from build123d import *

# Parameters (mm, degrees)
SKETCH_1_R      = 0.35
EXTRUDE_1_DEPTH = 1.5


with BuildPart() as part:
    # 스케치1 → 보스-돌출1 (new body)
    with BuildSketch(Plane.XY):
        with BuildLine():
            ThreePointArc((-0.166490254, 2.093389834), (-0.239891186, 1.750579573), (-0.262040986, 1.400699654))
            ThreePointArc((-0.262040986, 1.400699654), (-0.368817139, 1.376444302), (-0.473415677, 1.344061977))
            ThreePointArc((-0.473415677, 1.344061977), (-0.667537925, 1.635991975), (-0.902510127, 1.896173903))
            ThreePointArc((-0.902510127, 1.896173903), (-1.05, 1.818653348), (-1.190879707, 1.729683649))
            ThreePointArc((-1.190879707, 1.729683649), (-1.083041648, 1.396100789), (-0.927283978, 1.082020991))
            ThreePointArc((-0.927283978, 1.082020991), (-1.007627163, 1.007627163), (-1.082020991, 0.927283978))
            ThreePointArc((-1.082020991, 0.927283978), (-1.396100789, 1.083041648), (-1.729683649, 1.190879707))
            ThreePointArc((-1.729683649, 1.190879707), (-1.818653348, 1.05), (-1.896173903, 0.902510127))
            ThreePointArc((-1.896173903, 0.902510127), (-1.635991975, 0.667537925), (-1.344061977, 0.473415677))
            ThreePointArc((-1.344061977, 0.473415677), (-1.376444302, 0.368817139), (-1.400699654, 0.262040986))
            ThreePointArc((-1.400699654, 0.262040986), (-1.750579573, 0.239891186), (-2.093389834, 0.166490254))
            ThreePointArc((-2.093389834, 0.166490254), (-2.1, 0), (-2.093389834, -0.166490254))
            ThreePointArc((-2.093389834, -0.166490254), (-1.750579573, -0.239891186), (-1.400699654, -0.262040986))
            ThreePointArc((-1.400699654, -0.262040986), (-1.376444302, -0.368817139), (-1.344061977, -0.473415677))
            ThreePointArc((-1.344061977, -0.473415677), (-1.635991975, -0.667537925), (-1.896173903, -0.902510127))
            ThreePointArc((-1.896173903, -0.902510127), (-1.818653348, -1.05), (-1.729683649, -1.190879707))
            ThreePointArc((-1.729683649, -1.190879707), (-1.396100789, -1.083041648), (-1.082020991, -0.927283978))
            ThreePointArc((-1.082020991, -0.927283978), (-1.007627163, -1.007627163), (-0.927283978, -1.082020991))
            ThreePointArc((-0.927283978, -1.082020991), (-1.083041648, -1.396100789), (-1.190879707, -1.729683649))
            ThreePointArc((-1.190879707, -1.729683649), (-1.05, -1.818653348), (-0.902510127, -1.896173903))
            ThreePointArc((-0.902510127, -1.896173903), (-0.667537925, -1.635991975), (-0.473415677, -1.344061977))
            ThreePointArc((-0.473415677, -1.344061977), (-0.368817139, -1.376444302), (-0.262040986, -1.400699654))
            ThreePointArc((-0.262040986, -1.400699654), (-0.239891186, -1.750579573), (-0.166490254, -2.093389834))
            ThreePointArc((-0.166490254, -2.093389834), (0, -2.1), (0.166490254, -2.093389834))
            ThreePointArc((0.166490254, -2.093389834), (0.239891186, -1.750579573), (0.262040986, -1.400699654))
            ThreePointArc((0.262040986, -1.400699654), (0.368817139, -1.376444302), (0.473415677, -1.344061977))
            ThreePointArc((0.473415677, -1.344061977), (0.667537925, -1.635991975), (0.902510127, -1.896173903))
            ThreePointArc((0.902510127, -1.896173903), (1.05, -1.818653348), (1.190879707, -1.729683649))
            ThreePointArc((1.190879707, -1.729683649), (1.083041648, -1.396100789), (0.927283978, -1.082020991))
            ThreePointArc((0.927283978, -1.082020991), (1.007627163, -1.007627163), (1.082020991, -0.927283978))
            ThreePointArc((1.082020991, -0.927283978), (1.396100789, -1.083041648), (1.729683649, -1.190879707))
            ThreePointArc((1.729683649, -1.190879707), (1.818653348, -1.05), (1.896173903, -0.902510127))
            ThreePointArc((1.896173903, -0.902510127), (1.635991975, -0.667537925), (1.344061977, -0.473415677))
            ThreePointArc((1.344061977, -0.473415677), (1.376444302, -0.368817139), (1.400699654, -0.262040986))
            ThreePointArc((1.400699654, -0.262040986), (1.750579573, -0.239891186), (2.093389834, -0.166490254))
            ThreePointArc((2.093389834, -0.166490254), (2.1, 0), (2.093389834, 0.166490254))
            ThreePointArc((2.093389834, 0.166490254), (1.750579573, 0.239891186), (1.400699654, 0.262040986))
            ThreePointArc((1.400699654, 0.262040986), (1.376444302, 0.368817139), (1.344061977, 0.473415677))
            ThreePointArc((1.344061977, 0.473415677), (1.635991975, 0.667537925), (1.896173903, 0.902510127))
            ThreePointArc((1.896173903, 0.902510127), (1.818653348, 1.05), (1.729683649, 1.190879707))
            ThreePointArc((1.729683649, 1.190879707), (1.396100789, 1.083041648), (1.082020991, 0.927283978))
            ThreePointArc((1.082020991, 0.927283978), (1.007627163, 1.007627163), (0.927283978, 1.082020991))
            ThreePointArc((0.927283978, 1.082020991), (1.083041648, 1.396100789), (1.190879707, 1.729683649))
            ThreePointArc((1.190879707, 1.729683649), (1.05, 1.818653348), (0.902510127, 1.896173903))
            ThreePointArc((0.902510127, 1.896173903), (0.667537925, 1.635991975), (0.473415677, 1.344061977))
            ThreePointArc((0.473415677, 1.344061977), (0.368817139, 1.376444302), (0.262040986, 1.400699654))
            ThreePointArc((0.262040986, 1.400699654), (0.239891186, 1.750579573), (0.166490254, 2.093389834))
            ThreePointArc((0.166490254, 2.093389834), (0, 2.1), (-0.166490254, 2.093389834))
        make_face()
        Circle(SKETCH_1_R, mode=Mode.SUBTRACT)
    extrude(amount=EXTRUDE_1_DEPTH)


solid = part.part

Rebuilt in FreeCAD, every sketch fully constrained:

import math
import FreeCAD as App
import Part
import Sketcher

V = App.Vector

doc = App.newDocument("Part")
params = doc.addObject("Spreadsheet::Sheet", "Params")
for row, (alias, value) in enumerate([
    ("sketch1_diameter", "0.7 mm"),
    ("sketch1_radius", "2.1 mm"),
    ("pad1_length", "1.5 mm"),
], start=1):
    params.set(f"A{row}", alias)
    params.set(f"B{row}", "=" + value)
    params.setAlias(f"B{row}", alias)

body = doc.addObject("PartDesign::Body", "Body")

# Sketch on XY plane
sketch1 = body.newObject("Sketcher::SketchObject", "Sketch")
sketch1.AttachmentSupport = (doc.getObject("XY_Plane"), [""])
sketch1.MapMode = "FlatFace"
sketch1.addGeometry([
    Part.ArcOfCircle(Part.Circle(V(2.11, 1.43, 0), V(0, 0, 1), 2.38), math.radians(163.68), math.radians(180.61)),  # 0
    Part.ArcOfCircle(Part.Circle(V(0, 0, 0), V(0, 0, 1), 1.43), math.radians(100.6), math.radians(109.4)),  # 1
    Part.ArcOfCircle(Part.Circle(V(-2.54, 0.18, 0), V(0, 0, 1), 2.38), math.radians(29.39), math.radians(46.32)),  # 2
    Part.ArcOfCircle(Part.Circle(V(0, 0, 0), V(0, 0, 1), 2.1), math.radians(115.45), math.radians(124.55)),  # 3
    Part.ArcOfCircle(Part.Circle(V(1.12, 2.29, 0), V(0, 0, 1), 2.38), math.radians(-166.32), math.radians(-149.39)),  # 4
    Part.ArcOfCircle(Part.Circle(V(0, 0, 0), V(0, 0, 1), 1.43), math.radians(130.6), math.radians(139.4)),  # 5
    Part.ArcOfCircle(Part.Circle(V(-2.29, -1.12, 0), V(0, 0, 1), 2.38), math.radians(59.39), math.radians(76.32)),  # 6
    Part.ArcOfCircle(Part.Circle(V(0, 0, 0), V(0, 0, 1), 2.1), math.radians(145.45), math.radians(154.55)),  # 7
    Part.ArcOfCircle(Part.Circle(V(-0.18, 2.54, 0), V(0, 0, 1), 2.38), math.radians(-136.32), math.radians(-119.39)),  # 8
    Part.ArcOfCircle(Part.Circle(V(0, 0, 0), V(0, 0, 1), 1.43), math.radians(160.6), math.radians(169.4)),  # 9
    Part.ArcOfCircle(Part.Circle(V(-1.43, -2.11, 0), V(0, 0, 1), 2.38), math.radians(89.39), math.radians(106.32)),  # 10
    Part.ArcOfCircle(Part.Circle(V(0, 0, 0), V(0, 0, 1), 2.1), math.radians(175.45), math.radians(184.55)),  # 11
    Part.ArcOfCircle(Part.Circle(V(-1.43, 2.11, 0), V(0, 0, 1), 2.38), math.radians(-106.32), math.radians(-89.39)),  # 12
    Part.ArcOfCircle(Part.Circle(V(0, 0, 0), V(0, 0, 1), 1.43), math.radians(-169.4), math.radians(-160.6)),  # 13
    Part.ArcOfCircle(Part.Circle(V(-0.18, -2.54, 0), V(0, 0, 1), 2.38), math.radians(119.39), math.radians(136.32)),  # 14
    Part.ArcOfCircle(Part.Circle(V(0, 0, 0), V(0, 0, 1), 2.1), math.radians(-154.55), math.radians(-145.45)),  # 15
    Part.ArcOfCircle(Part.Circle(V(-2.29, 1.12, 0), V(0, 0, 1), 2.38), math.radians(-76.32), math.radians(-59.39)),  # 16
    Part.ArcOfCircle(Part.Circle(V(0, 0, 0), V(0, 0, 1), 1.43), math.radians(-139.4), math.radians(-130.6)),  # 17
    Part.ArcOfCircle(Part.Circle(V(1.12, -2.29, 0), V(0, 0, 1), 2.38), math.radians(149.39), math.radians(166.32)),  # 18
    Part.ArcOfCircle(Part.Circle(V(0, 0, 0), V(0, 0, 1), 2.1), math.radians(-124.55), math.radians(-115.45)),  # 19
    Part.ArcOfCircle(Part.Circle(V(-2.54, -0.18, 0), V(0, 0, 1), 2.38), math.radians(-46.32), math.radians(-29.39)),  # 20
    Part.ArcOfCircle(Part.Circle(V(0, 0, 0), V(0, 0, 1), 1.43), math.radians(-109.4), math.radians(-100.6)),  # 21
    Part.ArcOfCircle(Part.Circle(V(2.11, -1.43, 0), V(0, 0, 1), 2.38), math.radians(179.39), math.radians(196.32)),  # 22
    Part.ArcOfCircle(Part.Circle(V(0, 0, 0), V(0, 0, 1), 2.1), math.radians(-94.55), math.radians(-85.45)),  # 23
    Part.ArcOfCircle(Part.Circle(V(-2.11, -1.43, 0), V(0, 0, 1), 2.38), math.radians(-16.32), math.radians(0.61)),  # 24
    Part.ArcOfCircle(Part.Circle(V(0, 0, 0), V(0, 0, 1), 1.43), math.radians(-79.4), math.radians(-70.6)),  # 25
    Part.ArcOfCircle(Part.Circle(V(2.54, -0.18, 0), V(0, 0, 1), 2.38), math.radians(-150.61), math.radians(-133.68)),  # 26
    Part.ArcOfCircle(Part.Circle(V(0, 0, 0), V(0, 0, 1), 2.1), math.radians(-64.55), math.radians(-55.45)),  # 27
    Part.ArcOfCircle(Part.Circle(V(-1.12, -2.29, 0), V(0, 0, 1), 2.38), math.radians(13.68), math.radians(30.61)),  # 28
    Part.ArcOfCircle(Part.Circle(V(0, 0, 0), V(0, 0, 1), 1.43), math.radians(-49.4), math.radians(-40.6)),  # 29
    Part.ArcOfCircle(Part.Circle(V(2.29, 1.12, 0), V(0, 0, 1), 2.38), math.radians(-120.61), math.radians(-103.68)),  # 30
    Part.ArcOfCircle(Part.Circle(V(0, 0, 0), V(0, 0, 1), 2.1), math.radians(-34.55), math.radians(-25.45)),  # 31
    Part.ArcOfCircle(Part.Circle(V(0.18, -2.54, 0), V(0, 0, 1), 2.38), math.radians(43.68), math.radians(60.61)),  # 32
    Part.ArcOfCircle(Part.Circle(V(0, 0, 0), V(0, 0, 1), 1.43), math.radians(-19.4), math.radians(-10.6)),  # 33
    Part.ArcOfCircle(Part.Circle(V(1.43, 2.11, 0), V(0, 0, 1), 2.38), math.radians(-90.61), math.radians(-73.68)),  # 34
    Part.ArcOfCircle(Part.Circle(V(0, 0, 0), V(0, 0, 1), 2.1), math.radians(-4.55), math.radians(4.55)),  # 35
    Part.ArcOfCircle(Part.Circle(V(1.43, -2.11, 0), V(0, 0, 1), 2.38), math.radians(73.68), math.radians(90.61)),  # 36
    Part.ArcOfCircle(Part.Circle(V(0, 0, 0), V(0, 0, 1), 1.43), math.radians(10.6), math.radians(19.4)),  # 37
    Part.ArcOfCircle(Part.Circle(V(0.18, 2.54, 0), V(0, 0, 1), 2.38), math.radians(-60.61), math.radians(-43.68)),  # 38
    Part.ArcOfCircle(Part.Circle(V(0, 0, 0), V(0, 0, 1), 2.1), math.radians(25.45), math.radians(34.55)),  # 39
    Part.ArcOfCircle(Part.Circle(V(2.29, -1.12, 0), V(0, 0, 1), 2.38), math.radians(103.68), math.radians(120.61)),  # 40
    Part.ArcOfCircle(Part.Circle(V(0, 0, 0), V(0, 0, 1), 1.43), math.radians(40.6), math.radians(49.4)),  # 41
    Part.ArcOfCircle(Part.Circle(V(-1.12, 2.29, 0), V(0, 0, 1), 2.38), math.radians(-30.61), math.radians(-13.68)),  # 42
    Part.ArcOfCircle(Part.Circle(V(0, 0, 0), V(0, 0, 1), 2.1), math.radians(55.45), math.radians(64.55)),  # 43
    Part.ArcOfCircle(Part.Circle(V(2.54, 0.18, 0), V(0, 0, 1), 2.38), math.radians(133.68), math.radians(150.61)),  # 44
    Part.ArcOfCircle(Part.Circle(V(0, 0, 0), V(0, 0, 1), 1.43), math.radians(70.6), math.radians(79.4)),  # 45
    Part.ArcOfCircle(Part.Circle(V(-2.11, 1.43, 0), V(0, 0, 1), 2.38), math.radians(-0.61), math.radians(16.32)),  # 46
    Part.ArcOfCircle(Part.Circle(V(0, 0, 0), V(0, 0, 1), 2.1), math.radians(85.45), math.radians(94.55)),  # 47
    Part.Circle(V(0, 0, 0), V(0, 0, 1), 0.35),  # 48
], False)
sketch1.addConstraint([
    Sketcher.Constraint("Coincident", 0, 2, 1, 1),
    Sketcher.Constraint("Coincident", 1, 2, 2, 1),
    Sketcher.Constraint("Coincident", 2, 2, 3, 1),
    Sketcher.Constraint("Coincident", 3, 2, 4, 1),
    Sketcher.Constraint("Coincident", 4, 2, 5, 1),
    Sketcher.Constraint("Coincident", 5, 2, 6, 1),
    Sketcher.Constraint("Coincident", 6, 2, 7, 1),
    Sketcher.Constraint("Coincident", 7, 2, 8, 1),
    Sketcher.Constraint("Coincident", 8, 2, 9, 1),
    Sketcher.Constraint("Coincident", 9, 2, 10, 1),
    Sketcher.Constraint("Coincident", 10, 2, 11, 1),
    Sketcher.Constraint("Coincident", 11, 2, 12, 1),
    Sketcher.Constraint("Coincident", 12, 2, 13, 1),
    Sketcher.Constraint("Coincident", 13, 2, 14, 1),
    Sketcher.Constraint("Coincident", 14, 2, 15, 1),
    Sketcher.Constraint("Coincident", 15, 2, 16, 1),
    Sketcher.Constraint("Coincident", 16, 2, 17, 1),
    Sketcher.Constraint("Coincident", 17, 2, 18, 1),
    Sketcher.Constraint("Coincident", 18, 2, 19, 1),
    Sketcher.Constraint("Coincident", 19, 2, 20, 1),
    Sketcher.Constraint("Coincident", 20, 2, 21, 1),
    Sketcher.Constraint("Coincident", 21, 2, 22, 1),
    Sketcher.Constraint("Coincident", 22, 2, 23, 1),
    Sketcher.Constraint("Coincident", 23, 2, 24, 1),
    Sketcher.Constraint("Coincident", 24, 2, 25, 1),
    Sketcher.Constraint("Coincident", 25, 2, 26, 1),
    Sketcher.Constraint("Coincident", 26, 2, 27, 1),
    Sketcher.Constraint("Coincident", 27, 2, 28, 1),
    Sketcher.Constraint("Coincident", 28, 2, 29, 1),
    Sketcher.Constraint("Coincident", 29, 2, 30, 1),
    Sketcher.Constraint("Coincident", 30, 2, 31, 1),
    Sketcher.Constraint("Coincident", 31, 2, 32, 1),
    Sketcher.Constraint("Coincident", 32, 2, 33, 1),
    Sketcher.Constraint("Coincident", 33, 2, 34, 1),
    Sketcher.Constraint("Coincident", 34, 2, 35, 1),
    Sketcher.Constraint("Coincident", 35, 2, 36, 1),
    Sketcher.Constraint("Coincident", 36, 2, 37, 1),
    Sketcher.Constraint("Coincident", 37, 2, 38, 1),
    Sketcher.Constraint("Coincident", 38, 2, 39, 1),
    Sketcher.Constraint("Coincident", 39, 2, 40, 1),
    Sketcher.Constraint("Coincident", 40, 2, 41, 1),
    Sketcher.Constraint("Coincident", 41, 2, 42, 1),
    Sketcher.Constraint("Coincident", 42, 2, 43, 1),
    Sketcher.Constraint("Coincident", 43, 2, 44, 1),
    Sketcher.Constraint("Coincident", 44, 2, 45, 1),
    Sketcher.Constraint("Coincident", 45, 2, 46, 1),
    Sketcher.Constraint("Coincident", 46, 2, 47, 1),
    Sketcher.Constraint("Coincident", 47, 2, 0, 1),
    Sketcher.Constraint("Coincident", 1, 3, -1, 1),
    Sketcher.Constraint("Coincident", 3, 3, -1, 1),
    Sketcher.Constraint("Coincident", 5, 3, -1, 1),
    Sketcher.Constraint("Coincident", 7, 3, -1, 1),
    Sketcher.Constraint("Coincident", 9, 3, -1, 1),
    Sketcher.Constraint("Coincident", 11, 3, -1, 1),
    Sketcher.Constraint("Coincident", 13, 3, -1, 1),
    Sketcher.Constraint("Coincident", 15, 3, -1, 1),
    Sketcher.Constraint("Coincident", 17, 3, -1, 1),
    Sketcher.Constraint("Coincident", 19, 3, -1, 1),
    Sketcher.Constraint("Coincident", 21, 3, -1, 1),
    Sketcher.Constraint("Coincident", 23, 3, -1, 1),
    Sketcher.Constraint("Coincident", 25, 3, -1, 1),
    Sketcher.Constraint("Coincident", 27, 3, -1, 1),
    Sketcher.Constraint("Coincident", 29, 3, -1, 1),
    Sketcher.Constraint("Coincident", 31, 3, -1, 1),
    Sketcher.Constraint("Coincident", 33, 3, -1, 1),
    Sketcher.Constraint("Coincident", 35, 3, -1, 1),
    Sketcher.Constraint("Coincident", 37, 3, -1, 1),
    Sketcher.Constraint("Coincident", 39, 3, -1, 1),
    Sketcher.Constraint("Coincident", 41, 3, -1, 1),
    Sketcher.Constraint("Coincident", 43, 3, -1, 1),
    Sketcher.Constraint("Coincident", 45, 3, -1, 1),
    Sketcher.Constraint("Coincident", 47, 3, -1, 1),
    Sketcher.Constraint("Coincident", 48, 3, -1, 1),
    Sketcher.Constraint("Equal", 0, 2),
    Sketcher.Constraint("Equal", 2, 4),
    Sketcher.Constraint("Equal", 1, 5),
    Sketcher.Constraint("Equal", 4, 6),
    Sketcher.Constraint("Equal", 3, 7),
    Sketcher.Constraint("Equal", 6, 8),
    Sketcher.Constraint("Equal", 5, 9),
    Sketcher.Constraint("Equal", 8, 10),
    Sketcher.Constraint("Equal", 7, 11),
    Sketcher.Constraint("Equal", 10, 12),
    Sketcher.Constraint("Equal", 9, 13),
    Sketcher.Constraint("Equal", 12, 14),
    Sketcher.Constraint("Equal", 11, 15),
    Sketcher.Constraint("Equal", 14, 16),
    Sketcher.Constraint("Equal", 13, 17),
    Sketcher.Constraint("Equal", 16, 18),
    Sketcher.Constraint("Equal", 15, 19),
    Sketcher.Constraint("Equal", 18, 20),
    Sketcher.Constraint("Equal", 17, 21),
    Sketcher.Constraint("Equal", 20, 22),
    Sketcher.Constraint("Equal", 19, 23),
    Sketcher.Constraint("Equal", 22, 24),
    Sketcher.Constraint("Equal", 21, 25),
    Sketcher.Constraint("Equal", 24, 26),
    Sketcher.Constraint("Equal", 23, 27),
    Sketcher.Constraint("Equal", 26, 28),
    Sketcher.Constraint("Equal", 25, 29),
    Sketcher.Constraint("Equal", 28, 30),
    Sketcher.Constraint("Equal", 27, 31),
    Sketcher.Constraint("Equal", 30, 32),
    Sketcher.Constraint("Equal", 29, 33),
    Sketcher.Constraint("Equal", 32, 34),
    Sketcher.Constraint("Equal", 31, 35),
    Sketcher.Constraint("Equal", 34, 36),
    Sketcher.Constraint("Equal", 33, 37),
    Sketcher.Constraint("Equal", 36, 38),
    Sketcher.Constraint("Equal", 35, 39),
    Sketcher.Constraint("Equal", 38, 40),
    Sketcher.Constraint("Equal", 37, 41),
    Sketcher.Constraint("Equal", 40, 42),
    Sketcher.Constraint("Equal", 39, 43),
    Sketcher.Constraint("Equal", 42, 44),
    Sketcher.Constraint("Equal", 41, 45),
    Sketcher.Constraint("Equal", 44, 46),
    Sketcher.Constraint("Equal", 43, 47),
    Sketcher.Constraint("Symmetric", 0, 3, 24, 3, -1, 1),
    Sketcher.Constraint("Symmetric", 2, 3, 26, 3, -1, 1),
    Sketcher.Constraint("Symmetric", 4, 3, 28, 3, -1, 1),
    Sketcher.Constraint("Symmetric", 6, 3, 30, 3, -1, 1),
    Sketcher.Constraint("Symmetric", 8, 3, 32, 3, -1, 1),
    Sketcher.Constraint("Symmetric", 10, 3, 34, 3, -1, 1),
    Sketcher.Constraint("Symmetric", 12, 3, 36, 3, -1, 1),
    Sketcher.Constraint("Symmetric", 14, 3, 38, 3, -1, 1),
    Sketcher.Constraint("Symmetric", 16, 3, 40, 3, -1, 1),
    Sketcher.Constraint("Symmetric", 18, 3, 42, 3, -1, 1),
    Sketcher.Constraint("Symmetric", 20, 3, 44, 3, -1, 1),
    Sketcher.Constraint("Symmetric", 22, 3, 46, 3, -1, 1),
    Sketcher.Constraint("Symmetric", 22, 3, 24, 3, -2),
    Sketcher.Constraint("Symmetric", 20, 3, 26, 3, -2),
    Sketcher.Constraint("Symmetric", 18, 3, 28, 3, -2),
    Sketcher.Constraint("Symmetric", 16, 3, 30, 3, -2),
    Sketcher.Constraint("Symmetric", 14, 3, 32, 3, -2),
    Sketcher.Constraint("Symmetric", 12, 3, 34, 3, -2),
    Sketcher.Constraint("Diameter", 48, 0.7),
    Sketcher.Constraint("Radius", 3, 2.1),
    Sketcher.Constraint("Radius", 1, 1.425),
    Sketcher.Constraint("Radius", 0, 2.375629),
    Sketcher.Constraint("DistanceY", -1, 1, 0, 2, 1.4007),
    Sketcher.Constraint("DistanceX", 9, 2, -1, 1, 1.4007),
    Sketcher.Constraint("DistanceY", -1, 1, 4, 3, 2.291641),
    Sketcher.Constraint("DistanceX", 6, 3, -1, 1, 2.291641),
    Sketcher.Constraint("DistanceY", -1, 1, 1, 2, 1.344062),
    Sketcher.Constraint("DistanceX", 2, 2, -1, 1, 0.90251),
    Sketcher.Constraint("DistanceX", 3, 2, -1, 1, 1.19088),
    Sketcher.Constraint("DistanceX", 5, 2, -1, 1, 1.082021),
    Sketcher.Constraint("DistanceY", -1, 1, 7, 2, 0.90251),
    Sketcher.Constraint("DistanceX", 8, 2, -1, 1, 1.344062),
    Sketcher.Constraint("DistanceX", 10, 2, -1, 1, 2.09339),
    Sketcher.Constraint("DistanceX", 22, 2, -1, 1, 0.16649),
])
sketch1.setExpression("Constraints[136]", "Params.sketch1_diameter")
sketch1.setExpression("Constraints[137]", "Params.sketch1_radius")
pad1 = body.newObject("PartDesign::Pad", "Pad")
pad1.Profile = sketch1
pad1.setExpression("Length", "Params.pad1_length")

doc.recompute()
